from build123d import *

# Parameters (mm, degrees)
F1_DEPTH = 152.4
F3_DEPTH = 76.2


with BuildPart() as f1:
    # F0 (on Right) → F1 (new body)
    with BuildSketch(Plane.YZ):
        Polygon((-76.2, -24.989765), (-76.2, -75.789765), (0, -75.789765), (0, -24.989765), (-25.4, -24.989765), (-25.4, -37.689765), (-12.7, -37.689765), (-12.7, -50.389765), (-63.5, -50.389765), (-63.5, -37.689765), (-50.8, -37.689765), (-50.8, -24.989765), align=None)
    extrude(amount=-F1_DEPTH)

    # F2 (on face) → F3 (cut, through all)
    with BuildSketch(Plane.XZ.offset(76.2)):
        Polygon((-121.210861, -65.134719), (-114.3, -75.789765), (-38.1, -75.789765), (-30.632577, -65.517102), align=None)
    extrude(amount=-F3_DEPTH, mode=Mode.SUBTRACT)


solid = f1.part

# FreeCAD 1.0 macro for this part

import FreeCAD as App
import Part
import Sketcher

V = App.Vector
Q = App.Units.Quantity


def add_polygon(sketch, points):
    """Adds a closed chain of lines whose ends are joined by coincident constraints."""
    first, n = sketch.GeometryCount, len(points)
    for a, b in zip(points, points[1:] + points[:1]):
        sketch.addGeometry(Part.LineSegment(App.Vector(*a, 0), App.Vector(*b, 0)), False)
    for i in range(n):
        sketch.addConstraint(Sketcher.Constraint("Coincident", first + i, 2, first + (i + 1) % n, 1))

doc = App.newDocument("Part")
body = doc.addObject("PartDesign::Body", "Body")

# Sketch on YZ plane
sketch1 = body.newObject("Sketcher::SketchObject", "Sketch")
sketch1.AttachmentSupport = (doc.getObject("YZ_Plane"), [""])
sketch1.MapMode = "FlatFace"
add_polygon(sketch1, [(-76.2, -24.989765), (-76.2, -75.789765), (0, -75.789765), (0, -24.989765), (-25.4, -24.989765), (-25.4, -37.689765), (-12.7, -37.689765), (-12.7, -50.389765), (-63.5, -50.389765), (-63.5, -37.689765), (-50.8, -37.689765), (-50.8, -24.989765)])  # lines 0-11
sketch1.addConstraint([
    Sketcher.Constraint("Vertical", 0),
    Sketcher.Constraint("Horizontal", 1),
    Sketcher.Constraint("Vertical", 2),
    Sketcher.Constraint("Horizontal", 3),
    Sketcher.Constraint("Vertical", 4),
    Sketcher.Constraint("Horizontal", 5),
    Sketcher.Constraint("Vertical", 6),
    Sketcher.Constraint("Horizontal", 7),
    Sketcher.Constraint("Vertical", 8),
    Sketcher.Constraint("Horizontal", 9),
    Sketcher.Constraint("Vertical", 10),
    Sketcher.Constraint("Horizontal", 11),
    Sketcher.Constraint("PointOnObject", 1, 2, -2),
    Sketcher.Constraint("Horizontal", 5, 2, 8, 2),
    Sketcher.Constraint("Horizontal", 3, 2, 10, 2),
    Sketcher.Constraint("Equal", 5, 9),
    Sketcher.Constraint("Equal", 3, 11),
    Sketcher.Constraint("Equal", 7, 0),
    Sketcher.Constraint("Equal", 9, 4),
    Sketcher.Constraint("Equal", 4, 6),
    Sketcher.Constraint("DistanceX", 1, 1, 1, 2, Q("3 in")),
    Sketcher.Constraint("DistanceX", 3, 2, 3, 1, Q("1 in")),
    Sketcher.Constraint("DistanceX", 7, 2, 7, 1, Q("2 in")),
    Sketcher.Constraint("DistanceY", 0, 2, -1, 1, Q("75.789765 mm")),
])
pad1 = body.newObject("PartDesign::Pad", "Pad")
pad1.Profile = sketch1
pad1.Length = Q("6 in")
pad1.Reversed = True

# Sketch on XZ plane
sketch2 = body.newObject("Sketcher::SketchObject", "Sketch001")
sketch2.AttachmentSupport = (doc.getObject("XZ_Plane"), [""])
sketch2.MapMode = "FlatFace"
sketch2.AttachmentOffset = App.Placement(V(0, 0, 3 * 25.4), App.Rotation())
add_polygon(sketch2, [(-121.210861, -65.134719), (-114.3, -75.789765), (-38.1, -75.789765), (-30.632577, -65.517102)])  # lines 0-3
sketch2.addConstraint([
    Sketcher.Constraint("Horizontal", 1),
    Sketcher.Constraint("Equal", 0, 2),
    Sketcher.Constraint("DistanceX", 1, 1, 1, 2, Q("3 in")),
    Sketcher.Constraint("Distance", 0, Q("0.5 in")),
    Sketcher.Constraint("DistanceX", 0, 2, -1, 1, Q("4.5 in")),
    Sketcher.Constraint("DistanceY", 2, 2, -1, 1, Q("65.517102 mm")),
    Sketcher.Constraint("Distance", 3, Q("90.579091 mm")),
    Sketcher.Constraint("DistanceX", 3, 2, -1, 1, Q("121.210861 mm")),
])
pocket1 = body.newObject("PartDesign::Pocket", "Pocket")
pocket1.Profile = sketch2
pocket1.Type = "ThroughAll"

doc.recompute()
